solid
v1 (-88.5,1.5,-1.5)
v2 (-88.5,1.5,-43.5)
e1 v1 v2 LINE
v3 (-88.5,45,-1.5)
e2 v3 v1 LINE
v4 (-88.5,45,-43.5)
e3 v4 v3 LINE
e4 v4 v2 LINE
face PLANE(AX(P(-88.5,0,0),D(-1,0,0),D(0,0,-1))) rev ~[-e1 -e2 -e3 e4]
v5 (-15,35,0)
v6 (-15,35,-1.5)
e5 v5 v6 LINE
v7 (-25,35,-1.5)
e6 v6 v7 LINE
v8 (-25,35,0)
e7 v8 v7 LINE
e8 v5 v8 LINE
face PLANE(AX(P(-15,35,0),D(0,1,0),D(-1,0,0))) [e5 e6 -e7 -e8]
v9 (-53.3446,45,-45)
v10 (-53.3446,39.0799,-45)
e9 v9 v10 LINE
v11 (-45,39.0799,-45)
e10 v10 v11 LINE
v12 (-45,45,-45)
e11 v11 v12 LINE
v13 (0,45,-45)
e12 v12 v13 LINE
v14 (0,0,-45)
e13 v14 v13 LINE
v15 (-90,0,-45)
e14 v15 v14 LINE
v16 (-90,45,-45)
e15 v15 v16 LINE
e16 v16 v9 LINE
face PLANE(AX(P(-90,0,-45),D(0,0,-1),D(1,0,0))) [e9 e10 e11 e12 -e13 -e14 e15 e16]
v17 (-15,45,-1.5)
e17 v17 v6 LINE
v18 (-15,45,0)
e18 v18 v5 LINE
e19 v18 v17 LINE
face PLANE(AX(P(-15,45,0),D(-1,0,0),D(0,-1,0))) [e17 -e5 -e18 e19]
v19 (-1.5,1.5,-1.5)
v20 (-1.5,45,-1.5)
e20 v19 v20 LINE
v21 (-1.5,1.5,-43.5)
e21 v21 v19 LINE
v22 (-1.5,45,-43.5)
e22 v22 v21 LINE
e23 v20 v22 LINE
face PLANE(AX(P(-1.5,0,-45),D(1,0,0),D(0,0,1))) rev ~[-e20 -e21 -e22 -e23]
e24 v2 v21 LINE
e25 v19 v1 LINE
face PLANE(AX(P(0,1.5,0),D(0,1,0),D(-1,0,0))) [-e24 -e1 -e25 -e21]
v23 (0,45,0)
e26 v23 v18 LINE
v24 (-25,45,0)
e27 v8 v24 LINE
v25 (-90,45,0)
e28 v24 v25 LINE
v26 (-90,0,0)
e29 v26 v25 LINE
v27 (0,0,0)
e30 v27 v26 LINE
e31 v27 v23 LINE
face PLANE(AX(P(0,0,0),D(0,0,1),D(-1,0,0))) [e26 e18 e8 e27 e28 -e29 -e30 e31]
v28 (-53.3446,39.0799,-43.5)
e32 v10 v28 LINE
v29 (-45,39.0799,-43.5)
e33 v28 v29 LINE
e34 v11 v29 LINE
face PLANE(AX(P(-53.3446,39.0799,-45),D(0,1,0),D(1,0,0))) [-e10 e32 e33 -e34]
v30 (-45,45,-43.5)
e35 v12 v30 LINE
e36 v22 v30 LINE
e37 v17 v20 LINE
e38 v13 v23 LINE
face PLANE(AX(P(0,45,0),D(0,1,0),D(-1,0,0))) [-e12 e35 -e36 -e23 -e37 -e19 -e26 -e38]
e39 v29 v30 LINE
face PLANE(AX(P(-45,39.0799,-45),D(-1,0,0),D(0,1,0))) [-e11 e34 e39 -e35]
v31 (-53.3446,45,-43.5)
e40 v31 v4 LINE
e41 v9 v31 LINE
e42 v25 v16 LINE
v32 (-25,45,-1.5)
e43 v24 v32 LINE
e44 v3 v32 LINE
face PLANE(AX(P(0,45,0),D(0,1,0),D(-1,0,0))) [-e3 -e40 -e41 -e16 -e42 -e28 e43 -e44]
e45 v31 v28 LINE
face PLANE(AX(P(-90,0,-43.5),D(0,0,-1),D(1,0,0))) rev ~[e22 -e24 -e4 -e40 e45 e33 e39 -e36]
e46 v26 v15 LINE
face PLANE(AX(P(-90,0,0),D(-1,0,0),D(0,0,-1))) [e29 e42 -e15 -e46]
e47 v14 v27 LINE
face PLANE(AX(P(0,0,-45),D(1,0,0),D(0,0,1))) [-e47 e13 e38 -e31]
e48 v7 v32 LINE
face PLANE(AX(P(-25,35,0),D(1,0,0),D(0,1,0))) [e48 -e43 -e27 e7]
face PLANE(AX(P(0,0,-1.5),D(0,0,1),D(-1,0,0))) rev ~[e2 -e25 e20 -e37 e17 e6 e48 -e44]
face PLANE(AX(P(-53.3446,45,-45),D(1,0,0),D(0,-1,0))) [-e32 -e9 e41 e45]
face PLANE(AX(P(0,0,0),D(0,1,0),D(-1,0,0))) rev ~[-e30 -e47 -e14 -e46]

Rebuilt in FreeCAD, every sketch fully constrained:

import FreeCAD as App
import Part
import Sketcher

V = App.Vector
Q = App.Units.Quantity


def faces_at(feature, points):
    """Names of the faces that lie closest to the given points."""
    faces = feature.Shape.Faces
    near = lambda p: min(range(len(faces)), key=lambda i: faces[i].distToShape(Part.Vertex(*p))[0])
    return sorted({f"Face{near(p) + 1}" for p in points})


def add_polygon(sketch, points):
    """Adds a closed chain of lines whose ends are joined by coincident constraints."""
    first, n = sketch.GeometryCount, len(points)
    for a, b in zip(points, points[1:] + points[:1]):
        sketch.addGeometry(Part.LineSegment(App.Vector(*a, 0), App.Vector(*b, 0)), False)
    for i in range(n):
        sketch.addConstraint(Sketcher.Constraint("Coincident", first + i, 2, first + (i + 1) % n, 1))

doc = App.newDocument("Part")
body = doc.addObject("PartDesign::Body", "Body")

# Sketch on XZ plane
sketch1 = doc.addObject("Sketcher::SketchObject", "Sketch")
body.addObject(sketch1)
sketch1.AttachmentSupport = (doc.XZ_Plane, [""])
sketch1.MapMode = "FlatFace"
add_polygon(sketch1, [(-90, 0), (0, 0), (0, -45), (-90, -45)])  # lines 0-3
sketch1.addConstraint([
    Sketcher.Constraint("Horizontal", 0),
    Sketcher.Constraint("Vertical", 1),
    Sketcher.Constraint("Horizontal", 2),
    Sketcher.Constraint("Vertical", 3),
    Sketcher.Constraint("Coincident", 0, 2, -1, 1),
    Sketcher.Constraint("DistanceX", 0, 1, 0, 2, Q("90 mm")),
    Sketcher.Constraint("DistanceY", 1, 2, 1, 1, Q("45 mm")),
])
pad1 = doc.addObject("PartDesign::Pad", "Pad")
body.addObject(pad1)
pad1.Profile = sketch1
pad1.Length = 45
pad1.Reversed = True
doc.recompute()

thickness = doc.addObject("PartDesign::Thickness", "Thickness")
body.addObject(thickness)
thickness.Base = (pad1, faces_at(pad1, [(-30, 45, -15)]))
thickness.Value = 1.5
thickness.Reversed = True
thickness.Join = "Intersection"

# Sketch on XY plane
sketch2 = doc.addObject("Sketcher::SketchObject", "Sketch001")
body.addObject(sketch2)
sketch2.AttachmentSupport = (doc.XY_Plane, [""])
sketch2.MapMode = "FlatFace"
add_polygon(sketch2, [(-25, 35), (-15, 35), (-15, 45), (-25, 45)])  # lines 0-3
sketch2.addConstraint([
    Sketcher.Constraint("Horizontal", 0),
    Sketcher.Constraint("Vertical", 1),
    Sketcher.Constraint("Horizontal", 2),
    Sketcher.Constraint("Vertical", 3),
    Sketcher.Constraint("Equal", 2, 1),
    Sketcher.Constraint("DistanceX", 0, 1, 0, 2, Q("10 mm")),
    Sketcher.Constraint("DistanceX", 0, 2, -1, 1, Q("15 mm")),
    Sketcher.Constraint("DistanceY", -1, 1, 0, 2, Q("35 mm")),
])
pocket1 = doc.addObject("PartDesign::Pocket", "Pocket")
body.addObject(pocket1)
pocket1.Profile = sketch2
pocket1.Length = 10

# Sketch on XY plane
sketch3 = doc.addObject("Sketcher::SketchObject", "Sketch002")
body.addObject(sketch3)
sketch3.AttachmentSupport = (doc.XY_Plane, [""])
sketch3.MapMode = "FlatFace"
sketch3.AttachmentOffset = App.Placement(V(0, 0, -45), App.Rotation())
add_polygon(sketch3, [(-53.3446, 45), (-45, 45), (-45, 39.0799), (-53.3446, 39.0799)])  # lines 0-3
sketch3.addConstraint([
    Sketcher.Constraint("Horizontal", 0),
    Sketcher.Constraint("Vertical", 1),
    Sketcher.Constraint("Horizontal", 2),
    Sketcher.Constraint("Vertical", 3),
    Sketcher.Constraint("DistanceX", 0, 2, -1, 1, Q("45 mm")),
    Sketcher.Constraint("DistanceY", -1, 1, 0, 2, Q("45 mm")),
    Sketcher.Constraint("DistanceY", 1, 2, 1, 1, Q("5.92 mm")),
    Sketcher.Constraint("DistanceX", 0, 1, 0, 2, Q("8.3446 mm")),
])
pocket2 = doc.addObject("PartDesign::Pocket", "Pocket001")
body.addObject(pocket2)
pocket2.Profile = sketch3
pocket2.Length = 10
pocket2.Reversed = True

doc.recompute()
